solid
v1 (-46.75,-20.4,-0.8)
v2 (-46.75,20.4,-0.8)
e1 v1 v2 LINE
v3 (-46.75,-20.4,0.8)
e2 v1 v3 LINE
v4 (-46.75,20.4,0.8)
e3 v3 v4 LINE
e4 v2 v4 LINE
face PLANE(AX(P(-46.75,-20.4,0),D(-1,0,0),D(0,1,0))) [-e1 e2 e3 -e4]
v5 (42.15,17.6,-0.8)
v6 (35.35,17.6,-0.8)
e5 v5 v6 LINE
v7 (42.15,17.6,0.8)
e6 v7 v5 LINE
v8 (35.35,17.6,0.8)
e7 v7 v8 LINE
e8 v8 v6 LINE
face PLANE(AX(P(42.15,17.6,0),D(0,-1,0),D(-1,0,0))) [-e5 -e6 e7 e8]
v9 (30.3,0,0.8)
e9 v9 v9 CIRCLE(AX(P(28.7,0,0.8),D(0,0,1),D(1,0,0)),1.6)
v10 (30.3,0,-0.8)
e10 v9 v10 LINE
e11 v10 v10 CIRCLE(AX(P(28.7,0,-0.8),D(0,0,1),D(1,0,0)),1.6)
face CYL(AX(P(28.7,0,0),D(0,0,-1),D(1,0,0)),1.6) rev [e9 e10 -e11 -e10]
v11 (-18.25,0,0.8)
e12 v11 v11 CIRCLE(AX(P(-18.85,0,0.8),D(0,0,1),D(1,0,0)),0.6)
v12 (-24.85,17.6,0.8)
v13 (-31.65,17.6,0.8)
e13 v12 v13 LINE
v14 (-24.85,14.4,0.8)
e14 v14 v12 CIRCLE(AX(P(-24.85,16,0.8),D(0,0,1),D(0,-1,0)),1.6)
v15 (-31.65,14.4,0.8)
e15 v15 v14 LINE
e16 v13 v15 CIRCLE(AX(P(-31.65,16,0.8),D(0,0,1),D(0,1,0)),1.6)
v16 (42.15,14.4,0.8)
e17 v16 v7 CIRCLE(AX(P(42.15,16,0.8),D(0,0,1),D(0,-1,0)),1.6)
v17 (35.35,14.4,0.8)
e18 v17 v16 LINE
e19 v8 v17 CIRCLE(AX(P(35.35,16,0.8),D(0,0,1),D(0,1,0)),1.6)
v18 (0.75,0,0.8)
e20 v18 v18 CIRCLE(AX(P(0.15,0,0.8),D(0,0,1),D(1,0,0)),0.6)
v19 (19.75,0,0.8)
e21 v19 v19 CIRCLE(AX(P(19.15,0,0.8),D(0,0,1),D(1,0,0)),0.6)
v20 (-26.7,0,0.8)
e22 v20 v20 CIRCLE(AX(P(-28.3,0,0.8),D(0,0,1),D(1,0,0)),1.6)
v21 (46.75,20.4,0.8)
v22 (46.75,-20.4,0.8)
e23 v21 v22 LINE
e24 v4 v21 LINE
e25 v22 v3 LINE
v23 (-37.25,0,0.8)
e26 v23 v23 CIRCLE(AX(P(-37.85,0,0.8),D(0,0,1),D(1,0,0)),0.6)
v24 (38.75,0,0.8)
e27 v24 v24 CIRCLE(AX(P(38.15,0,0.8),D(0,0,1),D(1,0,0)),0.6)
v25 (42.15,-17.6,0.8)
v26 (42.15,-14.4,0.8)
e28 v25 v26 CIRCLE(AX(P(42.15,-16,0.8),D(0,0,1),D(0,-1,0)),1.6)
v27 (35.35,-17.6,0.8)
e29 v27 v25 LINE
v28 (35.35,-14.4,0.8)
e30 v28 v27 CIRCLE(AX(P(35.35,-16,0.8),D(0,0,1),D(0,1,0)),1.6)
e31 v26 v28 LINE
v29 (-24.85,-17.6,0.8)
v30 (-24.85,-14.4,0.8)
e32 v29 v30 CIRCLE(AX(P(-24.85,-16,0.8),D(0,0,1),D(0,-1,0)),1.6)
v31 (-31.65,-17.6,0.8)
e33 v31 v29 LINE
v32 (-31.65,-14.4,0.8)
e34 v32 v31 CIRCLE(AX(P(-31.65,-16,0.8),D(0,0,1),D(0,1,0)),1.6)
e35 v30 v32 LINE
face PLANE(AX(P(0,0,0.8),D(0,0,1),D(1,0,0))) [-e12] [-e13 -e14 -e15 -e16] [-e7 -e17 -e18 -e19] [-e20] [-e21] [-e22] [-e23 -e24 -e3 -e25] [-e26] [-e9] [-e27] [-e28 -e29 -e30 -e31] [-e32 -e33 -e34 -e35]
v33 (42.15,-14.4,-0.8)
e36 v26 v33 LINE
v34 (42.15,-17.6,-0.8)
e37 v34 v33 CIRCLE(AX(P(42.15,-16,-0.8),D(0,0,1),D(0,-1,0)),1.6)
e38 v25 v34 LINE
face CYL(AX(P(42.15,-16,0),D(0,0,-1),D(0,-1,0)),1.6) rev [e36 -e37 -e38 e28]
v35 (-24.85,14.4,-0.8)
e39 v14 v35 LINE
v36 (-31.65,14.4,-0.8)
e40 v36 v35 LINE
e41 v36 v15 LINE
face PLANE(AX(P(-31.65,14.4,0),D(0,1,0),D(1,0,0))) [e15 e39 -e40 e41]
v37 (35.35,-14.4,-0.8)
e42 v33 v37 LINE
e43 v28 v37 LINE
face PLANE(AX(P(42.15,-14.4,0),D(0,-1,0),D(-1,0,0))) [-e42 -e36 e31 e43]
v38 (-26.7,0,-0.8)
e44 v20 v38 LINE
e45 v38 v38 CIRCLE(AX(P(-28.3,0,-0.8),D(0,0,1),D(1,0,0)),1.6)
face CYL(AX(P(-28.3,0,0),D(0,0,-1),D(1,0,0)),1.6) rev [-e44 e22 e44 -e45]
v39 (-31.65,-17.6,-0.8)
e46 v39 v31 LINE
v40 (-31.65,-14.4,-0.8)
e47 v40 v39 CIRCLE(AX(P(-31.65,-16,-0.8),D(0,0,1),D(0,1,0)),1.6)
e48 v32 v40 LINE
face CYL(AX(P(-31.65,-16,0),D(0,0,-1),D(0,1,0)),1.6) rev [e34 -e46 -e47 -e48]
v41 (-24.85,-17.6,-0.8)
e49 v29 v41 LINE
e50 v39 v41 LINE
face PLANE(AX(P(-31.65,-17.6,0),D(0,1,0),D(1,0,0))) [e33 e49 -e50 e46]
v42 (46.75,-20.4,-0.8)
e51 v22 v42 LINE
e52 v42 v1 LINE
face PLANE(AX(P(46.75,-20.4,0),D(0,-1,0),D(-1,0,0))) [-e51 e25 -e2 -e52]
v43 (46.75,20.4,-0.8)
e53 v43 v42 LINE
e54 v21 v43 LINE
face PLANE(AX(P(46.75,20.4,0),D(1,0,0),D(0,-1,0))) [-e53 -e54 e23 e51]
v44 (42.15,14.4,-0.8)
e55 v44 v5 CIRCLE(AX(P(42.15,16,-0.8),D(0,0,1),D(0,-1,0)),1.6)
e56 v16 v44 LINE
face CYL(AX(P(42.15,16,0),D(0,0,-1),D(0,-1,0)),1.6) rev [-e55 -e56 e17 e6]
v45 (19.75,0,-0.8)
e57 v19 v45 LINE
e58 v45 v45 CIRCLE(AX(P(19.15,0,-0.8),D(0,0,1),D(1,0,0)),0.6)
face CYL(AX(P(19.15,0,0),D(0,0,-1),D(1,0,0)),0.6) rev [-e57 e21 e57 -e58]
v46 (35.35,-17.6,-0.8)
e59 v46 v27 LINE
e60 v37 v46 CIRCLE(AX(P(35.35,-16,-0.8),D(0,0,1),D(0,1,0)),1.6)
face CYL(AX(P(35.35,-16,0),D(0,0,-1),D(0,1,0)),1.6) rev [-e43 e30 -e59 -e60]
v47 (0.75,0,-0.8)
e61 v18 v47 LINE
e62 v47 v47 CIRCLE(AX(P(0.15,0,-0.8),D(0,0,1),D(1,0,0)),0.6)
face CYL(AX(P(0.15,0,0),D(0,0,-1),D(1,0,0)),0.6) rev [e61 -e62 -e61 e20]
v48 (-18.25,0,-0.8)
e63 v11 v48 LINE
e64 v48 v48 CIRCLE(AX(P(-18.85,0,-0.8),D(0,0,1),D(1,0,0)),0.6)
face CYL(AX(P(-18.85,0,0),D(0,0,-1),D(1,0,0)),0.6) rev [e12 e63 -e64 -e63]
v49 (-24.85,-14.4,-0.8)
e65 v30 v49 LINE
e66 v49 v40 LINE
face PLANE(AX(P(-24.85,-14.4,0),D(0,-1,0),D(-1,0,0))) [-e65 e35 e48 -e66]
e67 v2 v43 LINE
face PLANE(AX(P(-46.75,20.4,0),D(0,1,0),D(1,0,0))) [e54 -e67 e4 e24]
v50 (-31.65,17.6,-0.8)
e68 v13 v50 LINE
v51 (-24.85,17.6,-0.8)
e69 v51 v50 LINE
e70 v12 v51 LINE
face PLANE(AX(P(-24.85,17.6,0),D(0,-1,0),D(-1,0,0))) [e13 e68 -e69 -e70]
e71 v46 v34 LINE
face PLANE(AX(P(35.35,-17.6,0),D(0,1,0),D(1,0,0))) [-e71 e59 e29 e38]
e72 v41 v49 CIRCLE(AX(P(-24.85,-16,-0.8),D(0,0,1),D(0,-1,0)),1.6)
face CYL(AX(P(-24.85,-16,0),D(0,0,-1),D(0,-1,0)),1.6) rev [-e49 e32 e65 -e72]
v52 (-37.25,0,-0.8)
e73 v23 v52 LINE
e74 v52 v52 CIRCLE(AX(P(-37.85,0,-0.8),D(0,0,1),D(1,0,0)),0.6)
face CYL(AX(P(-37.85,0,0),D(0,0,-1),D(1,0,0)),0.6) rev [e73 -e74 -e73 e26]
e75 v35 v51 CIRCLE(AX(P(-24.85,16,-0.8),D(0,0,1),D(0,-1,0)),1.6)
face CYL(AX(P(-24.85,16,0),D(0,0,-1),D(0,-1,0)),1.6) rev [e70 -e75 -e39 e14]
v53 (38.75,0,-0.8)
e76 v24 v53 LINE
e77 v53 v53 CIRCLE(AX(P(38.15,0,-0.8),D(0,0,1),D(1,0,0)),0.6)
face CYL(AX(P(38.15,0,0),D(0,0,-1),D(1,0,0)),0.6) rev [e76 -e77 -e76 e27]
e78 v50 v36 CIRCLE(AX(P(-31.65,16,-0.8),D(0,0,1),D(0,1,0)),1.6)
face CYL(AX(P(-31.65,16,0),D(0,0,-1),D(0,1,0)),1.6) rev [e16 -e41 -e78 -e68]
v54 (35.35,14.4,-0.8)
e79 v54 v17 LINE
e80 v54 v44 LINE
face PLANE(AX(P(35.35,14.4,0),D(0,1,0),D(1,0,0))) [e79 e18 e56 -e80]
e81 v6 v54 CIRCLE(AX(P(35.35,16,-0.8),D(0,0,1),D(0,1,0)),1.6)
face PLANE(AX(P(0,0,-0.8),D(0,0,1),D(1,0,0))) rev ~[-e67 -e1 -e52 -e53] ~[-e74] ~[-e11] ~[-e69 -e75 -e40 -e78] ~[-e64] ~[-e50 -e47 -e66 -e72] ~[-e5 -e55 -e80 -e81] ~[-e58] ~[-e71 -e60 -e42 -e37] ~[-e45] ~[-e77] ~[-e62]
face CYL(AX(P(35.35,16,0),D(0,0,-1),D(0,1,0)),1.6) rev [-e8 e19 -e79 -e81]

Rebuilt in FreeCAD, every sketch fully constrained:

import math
import FreeCAD as App
import Part
import Sketcher

V = App.Vector

doc = App.newDocument("Part")
body = doc.addObject("PartDesign::Body", "Body")

# Sketch on XY plane
sketch1 = body.newObject("Sketcher::SketchObject", "Sketch")
sketch1.AttachmentSupport = (doc.getObject("XY_Plane"), [""])
sketch1.MapMode = "FlatFace"
sketch1.addGeometry([
    Part.LineSegment(V(46.8, 20.4, 0), V(-46.8, 20.4, 0)),  # 0
    Part.LineSegment(V(-46.8, 20.4, 0), V(-46.8, -20.4, 0)),  # 1
    Part.LineSegment(V(-46.8, -20.4, 0), V(46.8, -20.4, 0)),  # 2
    Part.LineSegment(V(46.8, -20.4, 0), V(46.8, 20.4, 0)),  # 3
    Part.LineSegment(V(-24.9, -17.6, 0), V(-31.6, -17.6, 0)),  # 4
    Part.ArcOfCircle(Part.Circle(V(-31.6, -16, 0), V(0, 0, 1), 1.6), math.radians(90), math.radians(270)),  # 5
    Part.LineSegment(V(-31.6, -14.4, 0), V(-24.9, -14.4, 0)),  # 6
    Part.ArcOfCircle(Part.Circle(V(-24.9, -16, 0), V(0, 0, 1), 1.6), math.radians(-90), math.radians(90)),  # 7
    Part.LineSegment(V(42.1, -17.6, 0), V(35.4, -17.6, 0)),  # 8
    Part.ArcOfCircle(Part.Circle(V(35.4, -16, 0), V(0, 0, 1), 1.6), math.radians(90), math.radians(270)),  # 9
    Part.LineSegment(V(35.4, -14.4, 0), V(42.1, -14.4, 0)),  # 10
    Part.ArcOfCircle(Part.Circle(V(42.1, -16, 0), V(0, 0, 1), 1.6), math.radians(-90), math.radians(90)),  # 11
    Part.Circle(V(-37.9, 0, 0), V(0, 0, 1), 0.6),  # 12
    Part.Circle(V(-28.3, 0, 0), V(0, 0, 1), 1.6),  # 13
    Part.Circle(V(-18.9, 0, 0), V(0, 0, 1), 0.6),  # 14
    Part.LineSegment(V(-24.9, 14.4, 0), V(-31.6, 14.4, 0)),  # 15
    Part.ArcOfCircle(Part.Circle(V(-31.6, 16, 0), V(0, 0, 1), 1.6), math.radians(90), math.radians(270)),  # 16
    Part.LineSegment(V(-31.6, 17.6, 0), V(-24.9, 17.6, 0)),  # 17
    Part.ArcOfCircle(Part.Circle(V(-24.9, 16, 0), V(0, 0, 1), 1.6), math.radians(-90), math.radians(90)),  # 18
    Part.Circle(V(0.1, 0, 0), V(0, 0, 1), 0.6),  # 19
    Part.Circle(V(19.1, 0, 0), V(0, 0, 1), 0.6),  # 20
    Part.Circle(V(28.7, 0, 0), V(0, 0, 1), 1.6),  # 21
    Part.Circle(V(38.1, 0, 0), V(0, 0, 1), 0.6),  # 22
    Part.LineSegment(V(42.1, 14.4, 0), V(35.4, 14.4, 0)),  # 23
    Part.ArcOfCircle(Part.Circle(V(35.4, 16, 0), V(0, 0, 1), 1.6), math.radians(90), math.radians(270)),  # 24
    Part.LineSegment(V(35.4, 17.6, 0), V(42.1, 17.6, 0)),  # 25
    Part.ArcOfCircle(Part.Circle(V(42.1, 16, 0), V(0, 0, 1), 1.6), math.radians(-90), math.radians(90)),  # 26
], False)
sketch1.addConstraint([
    Sketcher.Constraint("Coincident", 0, 2, 1, 1),
    Sketcher.Constraint("Coincident", 1, 2, 2, 1),
    Sketcher.Constraint("Coincident", 2, 2, 3, 1),
    Sketcher.Constraint("Coincident", 3, 2, 0, 1),
    Sketcher.Constraint("Tangent", 4, 2, 5, 2),
    Sketcher.Constraint("Tangent", 5, 1, 6, 1),
    Sketcher.Constraint("Tangent", 6, 2, 7, 2),
    Sketcher.Constraint("Tangent", 7, 1, 4, 1),
    Sketcher.Constraint("Tangent", 8, 2, 9, 2),
    Sketcher.Constraint("Tangent", 9, 1, 10, 1),
    Sketcher.Constraint("Tangent", 10, 2, 11, 2),
    Sketcher.Constraint("Tangent", 11, 1, 8, 1),
    Sketcher.Constraint("Tangent", 15, 2, 16, 2),
    Sketcher.Constraint("Tangent", 16, 1, 17, 1),
    Sketcher.Constraint("Tangent", 17, 2, 18, 2),
    Sketcher.Constraint("Tangent", 18, 1, 15, 1),
    Sketcher.Constraint("Tangent", 23, 2, 24, 2),
    Sketcher.Constraint("Tangent", 24, 1, 25, 1),
    Sketcher.Constraint("Tangent", 25, 2, 26, 2),
    Sketcher.Constraint("Tangent", 26, 1, 23, 1),
    Sketcher.Constraint("Horizontal", 0),
    Sketcher.Constraint("Vertical", 1),
    Sketcher.Constraint("Horizontal", 2),
    Sketcher.Constraint("Vertical", 3),
    Sketcher.Constraint("Horizontal", 4),
    Sketcher.Constraint("Horizontal", 6),
    Sketcher.Constraint("Horizontal", 8),
    Sketcher.Constraint("Horizontal", 10),
    Sketcher.Constraint("Horizontal", 15),
    Sketcher.Constraint("Horizontal", 17),
    Sketcher.Constraint("Horizontal", 23),
    Sketcher.Constraint("Horizontal", 25),
    Sketcher.Constraint("Equal", 7, 9),
    Sketcher.Constraint("Equal", 11, 13),
    Sketcher.Constraint("Equal", 12, 14),
    Sketcher.Constraint("Equal", 13, 16),
    Sketcher.Constraint("Equal", 14, 19),
    Sketcher.Constraint("Equal", 19, 20),
    Sketcher.Constraint("Equal", 18, 21),
    Sketcher.Constraint("Equal", 20, 22),
    Sketcher.Constraint("Equal", 21, 24),
    Sketcher.Constraint("Symmetric", 0, 2, 2, 2, -1, 1),
    Sketcher.Constraint("Symmetric", 5, 3, 16, 3, -1),
    Sketcher.Constraint("Symmetric", 9, 3, 24, 3, -1),
    Sketcher.Constraint("PointOnObject", 12, 3, -1),
    Sketcher.Constraint("PointOnObject", 13, 3, -1),
    Sketcher.Constraint("PointOnObject", 14, 3, -1),
    Sketcher.Constraint("PointOnObject", 19, 3, -1),
    Sketcher.Constraint("PointOnObject", 20, 3, -1),
    Sketcher.Constraint("PointOnObject", 21, 3, -1),
    Sketcher.Constraint("PointOnObject", 22, 3, -1),
    Sketcher.Constraint("Horizontal", 7, 3, 9, 3),
    Sketcher.Constraint("Vertical", 7, 3, 18, 3),
    Sketcher.Constraint("Vertical", 11, 3, 26, 3),
    Sketcher.Constraint("Equal", 6, 8),
    Sketcher.Constraint("Diameter", 12, 1.2),
    Sketcher.Constraint("Diameter", 13, 3.2),
    Sketcher.Constraint("DistanceX", 0, 2, 0, 1, 93.5),
    Sketcher.Constraint("DistanceX", 4, 2, 4, 1, 6.8),
    Sketcher.Constraint("DistanceY", 1, 2, 1, 1, 40.8),
    Sketcher.Constraint("DistanceX", 5, 3, 9, 3, 67.0),
    Sketcher.Constraint("DistanceX", 12, 3, 14, 3, 19.0),
    Sketcher.Constraint("DistanceY", 5, 3, 16, 3, 32.0),
    Sketcher.Constraint("DistanceX", 14, 3, 19, 3, 19.0),
    Sketcher.Constraint("DistanceX", 19, 3, 20, 3, 19.0),
    Sketcher.Constraint("DistanceX", 20, 3, 22, 3, 19.0),
    Sketcher.Constraint("DistanceX", 11, 3, 2, 2, 4.6),
    Sketcher.Constraint("DistanceX", 22, 3, 2, 2, 8.6),
    Sketcher.Constraint("DistanceX", 21, 3, 2, 2, 18.05),
    Sketcher.Constraint("DistanceX", 13, 3, -1, 1, 28.3),
])
pad1 = body.newObject("PartDesign::Pad", "Pad")
pad1.Profile = sketch1
pad1.Length = 1.6
pad1.Midplane = True

doc.recompute()
